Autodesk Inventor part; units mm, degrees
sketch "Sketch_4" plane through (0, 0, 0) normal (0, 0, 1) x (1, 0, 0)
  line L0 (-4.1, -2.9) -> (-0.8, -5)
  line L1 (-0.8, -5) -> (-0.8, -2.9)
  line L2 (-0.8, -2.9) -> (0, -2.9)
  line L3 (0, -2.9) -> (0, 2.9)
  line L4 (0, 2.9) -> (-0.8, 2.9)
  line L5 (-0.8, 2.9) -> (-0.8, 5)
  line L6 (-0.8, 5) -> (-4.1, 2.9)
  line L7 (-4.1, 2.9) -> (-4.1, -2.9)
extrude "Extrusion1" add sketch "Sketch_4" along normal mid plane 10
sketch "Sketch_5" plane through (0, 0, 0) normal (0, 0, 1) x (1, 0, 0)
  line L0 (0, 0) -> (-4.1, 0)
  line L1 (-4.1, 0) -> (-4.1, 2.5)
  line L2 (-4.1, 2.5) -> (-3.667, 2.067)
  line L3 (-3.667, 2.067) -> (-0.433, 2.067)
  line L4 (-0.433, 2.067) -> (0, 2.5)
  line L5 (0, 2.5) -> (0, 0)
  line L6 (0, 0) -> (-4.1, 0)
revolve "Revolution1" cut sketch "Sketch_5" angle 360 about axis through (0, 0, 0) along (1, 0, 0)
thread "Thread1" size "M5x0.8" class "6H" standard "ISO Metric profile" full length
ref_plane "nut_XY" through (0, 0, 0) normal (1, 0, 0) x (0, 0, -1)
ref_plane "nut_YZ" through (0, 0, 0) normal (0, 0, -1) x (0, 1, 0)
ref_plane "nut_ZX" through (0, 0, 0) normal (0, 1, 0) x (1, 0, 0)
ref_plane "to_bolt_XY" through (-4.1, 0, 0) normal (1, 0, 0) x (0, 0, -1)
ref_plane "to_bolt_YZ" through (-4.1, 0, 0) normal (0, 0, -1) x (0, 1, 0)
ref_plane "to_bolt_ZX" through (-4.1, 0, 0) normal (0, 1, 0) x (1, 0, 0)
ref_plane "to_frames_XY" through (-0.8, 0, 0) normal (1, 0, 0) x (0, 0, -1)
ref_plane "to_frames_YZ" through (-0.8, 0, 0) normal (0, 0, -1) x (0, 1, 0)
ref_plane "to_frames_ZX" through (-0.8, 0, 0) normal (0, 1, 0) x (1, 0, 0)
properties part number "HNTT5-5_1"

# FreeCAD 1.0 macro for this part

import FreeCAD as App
import Part
import Sketcher
from FreeCAD import Vector


def add_polygon(sketch, points):
    """Adds a closed chain of lines whose ends are joined by coincident constraints."""
    first, n = sketch.GeometryCount, len(points)
    for a, b in zip(points, points[1:] + points[:1]):
        sketch.addGeometry(Part.LineSegment(App.Vector(*a, 0), App.Vector(*b, 0)), False)
    for i in range(n):
        sketch.addConstraint(Sketcher.Constraint("Coincident", first + i, 2, first + (i + 1) % n, 1))

doc = App.newDocument("Part")
params = doc.addObject("Spreadsheet::Sheet", "Params")
for row, (alias, value) in enumerate([
    ("sketch1_width", "0.8 mm"),
    ("sketch1_height", "5.8 mm"),
    ("sketch1_height2", "2.1 mm"),
    ("pad1_length", "10 mm"),
    ("sketch2_width", "4.1 mm"),
    ("sketch2_height", "2.5 mm"),
    ("groove_angle", "360 deg"),
], start=1):
    params.set(f"A{row}", alias)
    params.set(f"B{row}", "=" + value)
    params.setAlias(f"B{row}", alias)

body = doc.addObject("PartDesign::Body", "Body")

sketch1 = body.newObject("Sketcher::SketchObject", "Sketch")
sketch1.AttachmentSupport = (doc.getObject("XY_Plane"), [""])
sketch1.MapMode = "FlatFace"
add_polygon(sketch1, [(-4.1, 2.9), (-4.1, -2.9), (-0.8, -5), (-0.8, -2.9), (0, -2.9), (0, 2.9), (-0.8, 2.9), (-0.8, 5)])
sketch1.addConstraint([
    Sketcher.Constraint("Vertical", 0),
    Sketcher.Constraint("Vertical", 2),
    Sketcher.Constraint("Horizontal", 3),
    Sketcher.Constraint("Vertical", 4),
    Sketcher.Constraint("Horizontal", 5),
    Sketcher.Constraint("Vertical", 6),
    Sketcher.Constraint("Symmetric", 3, 2, 4, 2, -1, 1),
    Sketcher.Constraint("Symmetric", 1, 2, 6, 2, -1),
    Sketcher.Constraint("Horizontal", 0, 2, 2, 2),
    Sketcher.Constraint("Horizontal", 5, 2, 7, 2),
    Sketcher.Constraint("DistanceX", 3, 1, 3, 2, 0.8),
    Sketcher.Constraint("DistanceY", 0, 2, 0, 1, 5.8),
    Sketcher.Constraint("DistanceY", 2, 1, 2, 2, 2.1),
    Sketcher.Constraint("DistanceX", 0, 2, -1, 1, 4.1),
])
sketch1.setExpression("Constraints[18]", "Params.sketch1_width")
sketch1.setExpression("Constraints[19]", "Params.sketch1_height")
sketch1.setExpression("Constraints[20]", "Params.sketch1_height2")
pad1 = body.newObject("PartDesign::Pad", "Pad")
pad1.Profile = sketch1
pad1.setExpression("Length", "Params.pad1_length")
pad1.Midplane = True

sketch2 = body.newObject("Sketcher::SketchObject", "Sketch001")
sketch2.AttachmentSupport = (doc.getObject("XY_Plane"), [""])
sketch2.MapMode = "FlatFace"
add_polygon(sketch2, [(-4.1, 0), (0, 0), (0, 2.5), (-0.433, 2.067), (-3.667, 2.067), (-4.1, 2.5)])
sketch2.addConstraint([
    Sketcher.Constraint("Horizontal", 0),
    Sketcher.Constraint("Vertical", 1),
    Sketcher.Constraint("Horizontal", 3),
    Sketcher.Constraint("Vertical", 5),
    Sketcher.Constraint("Coincident", 0, 2, -1, 1),
    Sketcher.Constraint("Perpendicular", 2, 4),
    Sketcher.Constraint("Horizontal", 1, 2, 4, 2),
    Sketcher.Constraint("Equal", 2, 4),
    Sketcher.Constraint("DistanceX", 0, 1, 0, 2, 4.1),
    Sketcher.Constraint("DistanceY", 1, 1, 1, 2, 2.5),
    Sketcher.Constraint("DistanceX", 3, 2, 3, 1, 3.234),
])
sketch2.setExpression("Constraints[14]", "Params.sketch2_width")
sketch2.setExpression("Constraints[15]", "Params.sketch2_height")
groove = body.newObject("PartDesign::Groove", "Groove")
groove.Profile = sketch2
groove.ReferenceAxis = (sketch2, ["H_Axis"])
groove.setExpression("Angle", "Params.groove_angle")

doc.recompute()
